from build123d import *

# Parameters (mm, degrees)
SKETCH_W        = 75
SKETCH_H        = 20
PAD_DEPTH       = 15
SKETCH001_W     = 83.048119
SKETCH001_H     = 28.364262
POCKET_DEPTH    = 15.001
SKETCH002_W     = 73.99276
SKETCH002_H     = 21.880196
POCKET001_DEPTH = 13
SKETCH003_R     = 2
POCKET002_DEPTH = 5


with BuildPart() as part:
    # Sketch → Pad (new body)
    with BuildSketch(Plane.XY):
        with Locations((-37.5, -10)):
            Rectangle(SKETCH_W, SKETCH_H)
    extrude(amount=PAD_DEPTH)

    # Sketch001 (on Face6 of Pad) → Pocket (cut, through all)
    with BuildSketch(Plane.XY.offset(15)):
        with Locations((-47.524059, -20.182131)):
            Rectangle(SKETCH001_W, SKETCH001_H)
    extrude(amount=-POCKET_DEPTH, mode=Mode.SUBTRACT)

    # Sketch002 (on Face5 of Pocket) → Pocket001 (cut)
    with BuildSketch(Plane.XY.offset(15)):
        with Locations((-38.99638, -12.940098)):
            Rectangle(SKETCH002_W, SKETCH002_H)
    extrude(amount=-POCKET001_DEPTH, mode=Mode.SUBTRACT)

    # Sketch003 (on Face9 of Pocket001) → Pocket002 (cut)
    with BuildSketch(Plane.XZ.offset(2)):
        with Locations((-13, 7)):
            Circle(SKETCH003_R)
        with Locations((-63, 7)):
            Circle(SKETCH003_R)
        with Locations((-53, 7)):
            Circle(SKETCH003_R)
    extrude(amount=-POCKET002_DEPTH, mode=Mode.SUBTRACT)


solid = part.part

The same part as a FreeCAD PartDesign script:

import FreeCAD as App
import Part
import Sketcher
Q = App.Units.Quantity

doc = App.newDocument("Part")
body = doc.addObject("PartDesign::Body", "Body")

# Sketch on XY plane
sketch1 = doc.addObject("Sketcher::SketchObject", "Sketch")
body.addObject(sketch1)
sketch1.AttachmentSupport = (doc.XY_Plane, [""])
sketch1.MapMode = "FlatFace"
sketch1.addGeometry([
    Part.LineSegment(App.Vector(-75, 0, 0), App.Vector(-75, -20, 0)),
    Part.LineSegment(App.Vector(-75, -20, 0), App.Vector(0, -20, 0)),
    Part.LineSegment(App.Vector(0, -20, 0), App.Vector(0, 0, 0)),
    Part.LineSegment(App.Vector(0, 0, 0), App.Vector(-75, 0, 0)),
], False)
sketch1.addConstraint([
    Sketcher.Constraint("Coincident", 0, 2, 1, 1),
    Sketcher.Constraint("Coincident", 1, 2, 2, 1),
    Sketcher.Constraint("Coincident", 2, 2, 3, 1),
    Sketcher.Constraint("Coincident", 3, 2, 0, 1),
    Sketcher.Constraint("Vertical", 0),
    Sketcher.Constraint("Horizontal", 1),
    Sketcher.Constraint("Vertical", 2),
    Sketcher.Constraint("Horizontal", 3),
    Sketcher.Constraint("Coincident", 2, 2, -1, 1),
    Sketcher.Constraint("DistanceX", 1, 1, 1, 2, Q("75 mm")),
    Sketcher.Constraint("DistanceY", 0, 2, 0, 1, Q("20 mm")),
])
pad1 = doc.addObject("PartDesign::Pad", "Pad")
body.addObject(pad1)
pad1.Profile = sketch1
pad1.Length = 15

# Sketch on XY plane
sketch2 = doc.addObject("Sketcher::SketchObject", "Sketch001")
body.addObject(sketch2)
sketch2.AttachmentSupport = (doc.XY_Plane, [""])
sketch2.MapMode = "FlatFace"
sketch2.AttachmentOffset = App.Placement(App.Vector(0, 0, 15), App.Rotation())
sketch2.addGeometry([
    Part.LineSegment(App.Vector(-89.048119, -6, 0), App.Vector(-89.048119, -34.364262, 0)),
    Part.LineSegment(App.Vector(-89.048119, -34.364262, 0), App.Vector(-6, -34.364262, 0)),
    Part.LineSegment(App.Vector(-6, -34.364262, 0), App.Vector(-6, -6, 0)),
    Part.LineSegment(App.Vector(-6, -6, 0), App.Vector(-89.048119, -6, 0)),
], False)
sketch2.addConstraint([
    Sketcher.Constraint("Coincident", 0, 2, 1, 1),
    Sketcher.Constraint("Coincident", 1, 2, 2, 1),
    Sketcher.Constraint("Coincident", 2, 2, 3, 1),
    Sketcher.Constraint("Coincident", 3, 2, 0, 1),
    Sketcher.Constraint("Vertical", 0),
    Sketcher.Constraint("Horizontal", 1),
    Sketcher.Constraint("Vertical", 2),
    Sketcher.Constraint("Horizontal", 3),
    Sketcher.Constraint("DistanceX", 1, 2, -1, 1, Q("6 mm")),
    Sketcher.Constraint("DistanceY", 2, 2, -1, 1, Q("6 mm")),
    Sketcher.Constraint("DistanceX", 1, 1, 1, 2, Q("83.048119 mm")),
    Sketcher.Constraint("DistanceY", 0, 2, 0, 1, Q("28.364262 mm")),
])
pocket1 = doc.addObject("PartDesign::Pocket", "Pocket")
body.addObject(pocket1)
pocket1.Profile = sketch2
pocket1.Type = "ThroughAll"

# Sketch on XY plane
sketch3 = doc.addObject("Sketcher::SketchObject", "Sketch002")
body.addObject(sketch3)
sketch3.AttachmentSupport = (doc.XY_Plane, [""])
sketch3.MapMode = "FlatFace"
sketch3.AttachmentOffset = App.Placement(App.Vector(0, 0, 15), App.Rotation())
sketch3.addGeometry([
    Part.LineSegment(App.Vector(-75.99276, -2, 0), App.Vector(-75.99276, -23.880196, 0)),
    Part.LineSegment(App.Vector(-75.99276, -23.880196, 0), App.Vector(-2, -23.880196, 0)),
    Part.LineSegment(App.Vector(-2, -23.880196, 0), App.Vector(-2, -2, 0)),
    Part.LineSegment(App.Vector(-2, -2, 0), App.Vector(-75.99276, -2, 0)),
], False)
sketch3.addConstraint([
    Sketcher.Constraint("Coincident", 0, 2, 1, 1),
    Sketcher.Constraint("Coincident", 1, 2, 2, 1),
    Sketcher.Constraint("Coincident", 2, 2, 3, 1),
    Sketcher.Constraint("Coincident", 3, 2, 0, 1),
    Sketcher.Constraint("Vertical", 0),
    Sketcher.Constraint("Horizontal", 1),
    Sketcher.Constraint("Vertical", 2),
    Sketcher.Constraint("Horizontal", 3),
    Sketcher.Constraint("DistanceX", 1, 2, -1, 1, Q("2 mm")),
    Sketcher.Constraint("DistanceY", 2, 2, -1, 1, Q("2 mm")),
    Sketcher.Constraint("DistanceX", 1, 1, 1, 2, Q("73.99276 mm")),
    Sketcher.Constraint("DistanceY", 0, 2, 0, 1, Q("21.880196 mm")),
])
pocket2 = doc.addObject("PartDesign::Pocket", "Pocket001")
body.addObject(pocket2)
pocket2.Profile = sketch3
pocket2.Length = 13

# Sketch on XZ plane
sketch4 = doc.addObject("Sketcher::SketchObject", "Sketch003")
body.addObject(sketch4)
sketch4.AttachmentSupport = (doc.XZ_Plane, [""])
sketch4.MapMode = "FlatFace"
sketch4.AttachmentOffset = App.Placement(App.Vector(0, 0, 2), App.Rotation())
sketch4.addGeometry([
    Part.Circle(App.Vector(-13, 7, 0), App.Vector(0, 0, 1), 2),
    Part.Circle(App.Vector(-63, 7, 0), App.Vector(0, 0, 1), 2),
    Part.Circle(App.Vector(-53, 7, 0), App.Vector(0, 0, 1), 2),
], False)
sketch4.addConstraint([
    Sketcher.Constraint("Equal", 0, 1),
    Sketcher.Constraint("Equal", 1, 2),
    Sketcher.Constraint("Horizontal", 0, 3, 1, 3),
    Sketcher.Constraint("Horizontal", 1, 3, 2, 3),
    Sketcher.Constraint("Diameter", 0, Q("4 mm")),
    Sketcher.Constraint("DistanceX", 0, 3, -1, 1, Q("13 mm")),
    Sketcher.Constraint("DistanceY", -1, 1, 0, 3, Q("7 mm")),
    Sketcher.Constraint("DistanceX", 1, 3, -1, 1, Q("63 mm")),
    Sketcher.Constraint("DistanceX", 2, 3, -1, 1, Q("53 mm")),
])
pocket3 = doc.addObject("PartDesign::Pocket", "Pocket002")
body.addObject(pocket3)
pocket3.Profile = sketch4
pocket3.Length = 5

doc.recompute()
